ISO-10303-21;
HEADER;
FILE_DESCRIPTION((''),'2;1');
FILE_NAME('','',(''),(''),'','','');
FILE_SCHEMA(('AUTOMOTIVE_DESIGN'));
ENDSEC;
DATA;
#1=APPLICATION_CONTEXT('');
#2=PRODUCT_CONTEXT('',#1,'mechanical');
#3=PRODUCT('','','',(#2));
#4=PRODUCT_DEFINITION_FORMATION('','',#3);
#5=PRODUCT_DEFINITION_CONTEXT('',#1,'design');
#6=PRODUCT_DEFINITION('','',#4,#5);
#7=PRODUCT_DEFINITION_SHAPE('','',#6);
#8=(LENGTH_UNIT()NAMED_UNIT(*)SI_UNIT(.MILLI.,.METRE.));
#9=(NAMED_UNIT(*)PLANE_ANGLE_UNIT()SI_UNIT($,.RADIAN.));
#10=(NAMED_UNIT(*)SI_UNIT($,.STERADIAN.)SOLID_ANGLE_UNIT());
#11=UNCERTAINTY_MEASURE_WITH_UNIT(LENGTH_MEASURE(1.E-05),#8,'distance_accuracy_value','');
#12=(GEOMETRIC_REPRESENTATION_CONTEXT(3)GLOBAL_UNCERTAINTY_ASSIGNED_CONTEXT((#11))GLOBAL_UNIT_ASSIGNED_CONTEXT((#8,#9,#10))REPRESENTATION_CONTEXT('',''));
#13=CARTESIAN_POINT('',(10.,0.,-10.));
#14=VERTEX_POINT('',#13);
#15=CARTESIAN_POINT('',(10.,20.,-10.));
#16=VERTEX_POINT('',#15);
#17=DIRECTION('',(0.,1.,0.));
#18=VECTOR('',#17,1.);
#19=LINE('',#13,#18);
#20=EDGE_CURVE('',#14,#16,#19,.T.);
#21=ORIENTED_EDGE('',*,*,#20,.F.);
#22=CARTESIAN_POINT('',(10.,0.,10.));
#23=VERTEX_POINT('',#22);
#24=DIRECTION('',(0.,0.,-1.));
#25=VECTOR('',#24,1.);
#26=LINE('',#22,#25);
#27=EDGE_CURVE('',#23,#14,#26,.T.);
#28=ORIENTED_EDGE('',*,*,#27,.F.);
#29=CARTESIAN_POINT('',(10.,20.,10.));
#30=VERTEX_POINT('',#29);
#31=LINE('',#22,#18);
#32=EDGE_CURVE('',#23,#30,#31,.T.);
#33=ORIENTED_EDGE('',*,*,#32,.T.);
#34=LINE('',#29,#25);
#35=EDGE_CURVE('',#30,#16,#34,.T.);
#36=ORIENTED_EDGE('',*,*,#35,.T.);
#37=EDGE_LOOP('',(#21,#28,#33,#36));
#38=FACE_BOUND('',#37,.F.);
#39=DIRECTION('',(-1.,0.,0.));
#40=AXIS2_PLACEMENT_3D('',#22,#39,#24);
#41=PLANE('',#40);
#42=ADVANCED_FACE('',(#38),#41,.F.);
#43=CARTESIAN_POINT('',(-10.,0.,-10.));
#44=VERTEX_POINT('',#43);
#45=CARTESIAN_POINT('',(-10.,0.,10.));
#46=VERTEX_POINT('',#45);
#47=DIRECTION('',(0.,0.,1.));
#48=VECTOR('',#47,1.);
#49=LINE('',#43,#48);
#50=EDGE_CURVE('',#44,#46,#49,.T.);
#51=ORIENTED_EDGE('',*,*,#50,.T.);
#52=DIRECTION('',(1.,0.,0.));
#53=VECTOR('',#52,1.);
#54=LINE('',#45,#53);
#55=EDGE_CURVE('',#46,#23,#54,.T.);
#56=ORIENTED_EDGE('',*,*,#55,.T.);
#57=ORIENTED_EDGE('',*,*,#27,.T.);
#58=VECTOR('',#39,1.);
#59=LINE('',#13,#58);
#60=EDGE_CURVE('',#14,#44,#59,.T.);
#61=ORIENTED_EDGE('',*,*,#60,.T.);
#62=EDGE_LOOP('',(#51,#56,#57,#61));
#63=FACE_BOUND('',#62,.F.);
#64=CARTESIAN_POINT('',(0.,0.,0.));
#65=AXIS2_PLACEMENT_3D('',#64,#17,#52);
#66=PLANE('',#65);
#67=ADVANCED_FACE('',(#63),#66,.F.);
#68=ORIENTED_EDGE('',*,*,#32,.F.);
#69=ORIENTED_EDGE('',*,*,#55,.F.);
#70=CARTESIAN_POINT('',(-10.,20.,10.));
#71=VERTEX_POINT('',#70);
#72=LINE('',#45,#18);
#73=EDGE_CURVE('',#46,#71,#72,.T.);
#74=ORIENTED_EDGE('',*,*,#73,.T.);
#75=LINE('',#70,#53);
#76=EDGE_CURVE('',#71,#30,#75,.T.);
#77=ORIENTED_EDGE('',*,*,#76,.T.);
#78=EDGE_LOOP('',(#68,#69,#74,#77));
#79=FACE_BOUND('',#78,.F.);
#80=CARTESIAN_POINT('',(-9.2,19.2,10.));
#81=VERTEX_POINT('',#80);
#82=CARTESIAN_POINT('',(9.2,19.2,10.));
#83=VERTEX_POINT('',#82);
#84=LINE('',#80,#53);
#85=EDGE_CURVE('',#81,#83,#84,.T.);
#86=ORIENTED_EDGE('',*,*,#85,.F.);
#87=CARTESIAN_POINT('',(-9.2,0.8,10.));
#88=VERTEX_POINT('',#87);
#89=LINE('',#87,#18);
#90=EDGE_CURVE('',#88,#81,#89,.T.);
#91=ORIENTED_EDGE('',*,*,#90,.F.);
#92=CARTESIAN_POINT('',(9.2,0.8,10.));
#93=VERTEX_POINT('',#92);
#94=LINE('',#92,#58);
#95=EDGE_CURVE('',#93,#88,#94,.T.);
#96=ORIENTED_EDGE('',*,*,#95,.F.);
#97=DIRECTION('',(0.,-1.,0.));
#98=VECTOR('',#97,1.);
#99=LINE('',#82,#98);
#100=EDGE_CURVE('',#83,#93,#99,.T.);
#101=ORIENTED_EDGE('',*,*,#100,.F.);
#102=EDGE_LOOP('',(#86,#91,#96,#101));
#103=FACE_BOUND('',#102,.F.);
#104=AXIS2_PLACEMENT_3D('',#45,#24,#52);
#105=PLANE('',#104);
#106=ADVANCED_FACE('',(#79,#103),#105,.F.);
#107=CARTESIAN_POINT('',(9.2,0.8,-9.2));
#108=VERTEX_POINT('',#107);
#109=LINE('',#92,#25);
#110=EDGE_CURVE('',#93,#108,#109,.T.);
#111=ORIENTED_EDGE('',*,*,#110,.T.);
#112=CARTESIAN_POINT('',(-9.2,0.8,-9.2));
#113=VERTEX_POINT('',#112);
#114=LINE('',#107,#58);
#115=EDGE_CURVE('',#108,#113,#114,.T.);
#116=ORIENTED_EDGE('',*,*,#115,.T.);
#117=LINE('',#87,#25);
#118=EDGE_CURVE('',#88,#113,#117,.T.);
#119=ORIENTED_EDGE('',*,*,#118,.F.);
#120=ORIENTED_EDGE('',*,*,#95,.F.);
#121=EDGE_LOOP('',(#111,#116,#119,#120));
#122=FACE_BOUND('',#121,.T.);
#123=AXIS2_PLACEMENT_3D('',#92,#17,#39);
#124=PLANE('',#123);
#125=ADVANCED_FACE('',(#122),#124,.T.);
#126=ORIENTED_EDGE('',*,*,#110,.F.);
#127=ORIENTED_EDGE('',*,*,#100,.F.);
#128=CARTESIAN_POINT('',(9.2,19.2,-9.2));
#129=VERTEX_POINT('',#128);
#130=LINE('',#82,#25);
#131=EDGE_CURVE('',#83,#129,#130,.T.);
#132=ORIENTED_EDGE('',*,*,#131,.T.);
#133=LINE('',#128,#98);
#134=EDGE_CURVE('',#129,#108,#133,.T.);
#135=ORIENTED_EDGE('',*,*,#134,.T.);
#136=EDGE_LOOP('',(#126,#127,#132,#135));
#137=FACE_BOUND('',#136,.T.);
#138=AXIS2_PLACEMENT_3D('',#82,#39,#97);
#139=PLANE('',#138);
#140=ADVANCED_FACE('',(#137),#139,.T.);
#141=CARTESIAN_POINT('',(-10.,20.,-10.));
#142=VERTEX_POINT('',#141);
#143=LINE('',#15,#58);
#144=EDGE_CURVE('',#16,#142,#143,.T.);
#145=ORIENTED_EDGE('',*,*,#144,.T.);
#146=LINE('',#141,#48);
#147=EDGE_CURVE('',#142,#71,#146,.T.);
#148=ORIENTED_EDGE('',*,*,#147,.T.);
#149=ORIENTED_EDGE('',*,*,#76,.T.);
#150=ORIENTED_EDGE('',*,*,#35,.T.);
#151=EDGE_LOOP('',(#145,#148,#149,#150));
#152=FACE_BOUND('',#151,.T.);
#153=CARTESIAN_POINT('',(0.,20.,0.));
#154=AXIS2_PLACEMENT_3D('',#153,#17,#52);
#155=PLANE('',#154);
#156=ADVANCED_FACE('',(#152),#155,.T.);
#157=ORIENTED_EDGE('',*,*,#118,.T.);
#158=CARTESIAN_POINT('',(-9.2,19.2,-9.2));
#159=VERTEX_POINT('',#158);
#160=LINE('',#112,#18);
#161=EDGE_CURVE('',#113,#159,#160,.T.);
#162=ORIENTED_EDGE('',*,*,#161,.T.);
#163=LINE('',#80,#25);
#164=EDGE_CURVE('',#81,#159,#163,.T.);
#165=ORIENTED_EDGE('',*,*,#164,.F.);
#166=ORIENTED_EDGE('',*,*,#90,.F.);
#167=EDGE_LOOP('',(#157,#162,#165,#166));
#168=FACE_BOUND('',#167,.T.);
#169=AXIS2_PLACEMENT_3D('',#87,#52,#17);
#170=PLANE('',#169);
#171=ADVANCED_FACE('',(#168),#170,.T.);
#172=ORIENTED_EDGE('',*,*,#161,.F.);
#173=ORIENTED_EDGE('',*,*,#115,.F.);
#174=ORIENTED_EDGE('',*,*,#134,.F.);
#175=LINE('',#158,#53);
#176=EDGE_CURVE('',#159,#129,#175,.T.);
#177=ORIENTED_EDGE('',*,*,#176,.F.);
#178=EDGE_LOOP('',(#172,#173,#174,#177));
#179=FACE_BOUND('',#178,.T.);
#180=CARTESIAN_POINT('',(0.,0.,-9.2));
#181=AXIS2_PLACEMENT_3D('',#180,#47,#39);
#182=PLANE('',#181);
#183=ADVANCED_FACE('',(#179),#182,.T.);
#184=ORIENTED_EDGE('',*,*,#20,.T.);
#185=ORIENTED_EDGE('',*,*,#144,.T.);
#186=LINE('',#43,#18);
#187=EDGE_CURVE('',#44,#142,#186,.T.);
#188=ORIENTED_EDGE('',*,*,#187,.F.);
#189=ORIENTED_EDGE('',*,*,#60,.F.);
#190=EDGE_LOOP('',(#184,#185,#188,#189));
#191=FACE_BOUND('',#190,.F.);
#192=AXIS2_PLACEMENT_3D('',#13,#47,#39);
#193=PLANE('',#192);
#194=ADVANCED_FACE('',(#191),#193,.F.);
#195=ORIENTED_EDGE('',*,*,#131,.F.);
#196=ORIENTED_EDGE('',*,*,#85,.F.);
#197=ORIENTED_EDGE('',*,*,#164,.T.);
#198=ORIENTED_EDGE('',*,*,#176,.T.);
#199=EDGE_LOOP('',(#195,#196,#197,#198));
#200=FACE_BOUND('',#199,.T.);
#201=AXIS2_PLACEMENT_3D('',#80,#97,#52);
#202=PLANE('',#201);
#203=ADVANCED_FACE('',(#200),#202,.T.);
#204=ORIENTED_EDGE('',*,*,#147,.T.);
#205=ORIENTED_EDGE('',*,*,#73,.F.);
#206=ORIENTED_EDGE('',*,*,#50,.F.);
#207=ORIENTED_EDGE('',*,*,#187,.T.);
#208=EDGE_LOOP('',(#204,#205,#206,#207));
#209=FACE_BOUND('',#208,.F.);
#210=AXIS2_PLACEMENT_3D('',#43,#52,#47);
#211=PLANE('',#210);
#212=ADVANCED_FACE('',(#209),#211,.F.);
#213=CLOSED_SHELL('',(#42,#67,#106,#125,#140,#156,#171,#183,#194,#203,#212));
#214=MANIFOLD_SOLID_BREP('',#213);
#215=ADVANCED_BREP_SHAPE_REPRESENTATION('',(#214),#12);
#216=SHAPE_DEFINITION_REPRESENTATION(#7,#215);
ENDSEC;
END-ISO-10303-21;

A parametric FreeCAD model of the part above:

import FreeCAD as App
import Part
import Sketcher

V = App.Vector

doc = App.newDocument("Part")
body = doc.addObject("PartDesign::Body", "Body")

sketch1 = body.newObject("Sketcher::SketchObject", "Sketch")
sketch1.AttachmentSupport = (doc.getObject("XZ_Plane"), [""])
sketch1.MapMode = "FlatFace"
sketch1.addGeometry([
    Part.LineSegment(V(10, 10, 0), V(10, -10, 0)),
    Part.LineSegment(V(10, -10, 0), V(-10, -10, 0)),
    Part.LineSegment(V(-10, -10, 0), V(-10, 10, 0)),
    Part.LineSegment(V(-10, 10, 0), V(10, 10, 0)),
], False)
sketch1.addConstraint([
    Sketcher.Constraint("Coincident", 0, 2, 1, 1),
    Sketcher.Constraint("Coincident", 1, 2, 2, 1),
    Sketcher.Constraint("Coincident", 2, 2, 3, 1),
    Sketcher.Constraint("Coincident", 3, 2, 0, 1),
    Sketcher.Constraint("Vertical", 0),
    Sketcher.Constraint("Horizontal", 1),
    Sketcher.Constraint("Vertical", 2),
    Sketcher.Constraint("Horizontal", 3),
    Sketcher.Constraint("Symmetric", 0, 2, 2, 2, -1, 1),
    Sketcher.Constraint("Equal", 3, 0),
    Sketcher.Constraint("DistanceX", 1, 2, 1, 1, 20.0),
])
pad1 = body.newObject("PartDesign::Pad", "Pad")
pad1.Profile = sketch1
pad1.Length = 20
pad1.Reversed = True

sketch2 = body.newObject("Sketcher::SketchObject", "Sketch001")
sketch2.AttachmentSupport = (doc.getObject("XY_Plane"), [""])
sketch2.MapMode = "FlatFace"
sketch2.AttachmentOffset = App.Placement(V(0, 0, 10), App.Rotation())
sketch2.addGeometry([
    Part.LineSegment(V(-9.2, 19.2, 0), V(-9.2, 0.8, 0)),
    Part.LineSegment(V(-9.2, 0.8, 0), V(9.2, 0.8, 0)),
    Part.LineSegment(V(9.2, 0.8, 0), V(9.2, 19.2, 0)),
    Part.LineSegment(V(9.2, 19.2, 0), V(-9.2, 19.2, 0)),
], False)
sketch2.addConstraint([
    Sketcher.Constraint("Coincident", 0, 2, 1, 1),
    Sketcher.Constraint("Coincident", 1, 2, 2, 1),
    Sketcher.Constraint("Coincident", 2, 2, 3, 1),
    Sketcher.Constraint("Coincident", 3, 2, 0, 1),
    Sketcher.Constraint("Vertical", 0),
    Sketcher.Constraint("Horizontal", 1),
    Sketcher.Constraint("Vertical", 2),
    Sketcher.Constraint("Horizontal", 3),
    Sketcher.Constraint("Equal", 3, 0),
    Sketcher.Constraint("DistanceY", -1, 1, 0, 2, 0.8),
    Sketcher.Constraint("DistanceX", 1, 1, 1, 2, 18.4),
    Sketcher.Constraint("DistanceX", 0, 2, -1, 1, 9.2),
])
pocket1 = body.newObject("PartDesign::Pocket", "Pocket")
pocket1.Profile = sketch2
pocket1.Length = 19.2

doc.recompute()
